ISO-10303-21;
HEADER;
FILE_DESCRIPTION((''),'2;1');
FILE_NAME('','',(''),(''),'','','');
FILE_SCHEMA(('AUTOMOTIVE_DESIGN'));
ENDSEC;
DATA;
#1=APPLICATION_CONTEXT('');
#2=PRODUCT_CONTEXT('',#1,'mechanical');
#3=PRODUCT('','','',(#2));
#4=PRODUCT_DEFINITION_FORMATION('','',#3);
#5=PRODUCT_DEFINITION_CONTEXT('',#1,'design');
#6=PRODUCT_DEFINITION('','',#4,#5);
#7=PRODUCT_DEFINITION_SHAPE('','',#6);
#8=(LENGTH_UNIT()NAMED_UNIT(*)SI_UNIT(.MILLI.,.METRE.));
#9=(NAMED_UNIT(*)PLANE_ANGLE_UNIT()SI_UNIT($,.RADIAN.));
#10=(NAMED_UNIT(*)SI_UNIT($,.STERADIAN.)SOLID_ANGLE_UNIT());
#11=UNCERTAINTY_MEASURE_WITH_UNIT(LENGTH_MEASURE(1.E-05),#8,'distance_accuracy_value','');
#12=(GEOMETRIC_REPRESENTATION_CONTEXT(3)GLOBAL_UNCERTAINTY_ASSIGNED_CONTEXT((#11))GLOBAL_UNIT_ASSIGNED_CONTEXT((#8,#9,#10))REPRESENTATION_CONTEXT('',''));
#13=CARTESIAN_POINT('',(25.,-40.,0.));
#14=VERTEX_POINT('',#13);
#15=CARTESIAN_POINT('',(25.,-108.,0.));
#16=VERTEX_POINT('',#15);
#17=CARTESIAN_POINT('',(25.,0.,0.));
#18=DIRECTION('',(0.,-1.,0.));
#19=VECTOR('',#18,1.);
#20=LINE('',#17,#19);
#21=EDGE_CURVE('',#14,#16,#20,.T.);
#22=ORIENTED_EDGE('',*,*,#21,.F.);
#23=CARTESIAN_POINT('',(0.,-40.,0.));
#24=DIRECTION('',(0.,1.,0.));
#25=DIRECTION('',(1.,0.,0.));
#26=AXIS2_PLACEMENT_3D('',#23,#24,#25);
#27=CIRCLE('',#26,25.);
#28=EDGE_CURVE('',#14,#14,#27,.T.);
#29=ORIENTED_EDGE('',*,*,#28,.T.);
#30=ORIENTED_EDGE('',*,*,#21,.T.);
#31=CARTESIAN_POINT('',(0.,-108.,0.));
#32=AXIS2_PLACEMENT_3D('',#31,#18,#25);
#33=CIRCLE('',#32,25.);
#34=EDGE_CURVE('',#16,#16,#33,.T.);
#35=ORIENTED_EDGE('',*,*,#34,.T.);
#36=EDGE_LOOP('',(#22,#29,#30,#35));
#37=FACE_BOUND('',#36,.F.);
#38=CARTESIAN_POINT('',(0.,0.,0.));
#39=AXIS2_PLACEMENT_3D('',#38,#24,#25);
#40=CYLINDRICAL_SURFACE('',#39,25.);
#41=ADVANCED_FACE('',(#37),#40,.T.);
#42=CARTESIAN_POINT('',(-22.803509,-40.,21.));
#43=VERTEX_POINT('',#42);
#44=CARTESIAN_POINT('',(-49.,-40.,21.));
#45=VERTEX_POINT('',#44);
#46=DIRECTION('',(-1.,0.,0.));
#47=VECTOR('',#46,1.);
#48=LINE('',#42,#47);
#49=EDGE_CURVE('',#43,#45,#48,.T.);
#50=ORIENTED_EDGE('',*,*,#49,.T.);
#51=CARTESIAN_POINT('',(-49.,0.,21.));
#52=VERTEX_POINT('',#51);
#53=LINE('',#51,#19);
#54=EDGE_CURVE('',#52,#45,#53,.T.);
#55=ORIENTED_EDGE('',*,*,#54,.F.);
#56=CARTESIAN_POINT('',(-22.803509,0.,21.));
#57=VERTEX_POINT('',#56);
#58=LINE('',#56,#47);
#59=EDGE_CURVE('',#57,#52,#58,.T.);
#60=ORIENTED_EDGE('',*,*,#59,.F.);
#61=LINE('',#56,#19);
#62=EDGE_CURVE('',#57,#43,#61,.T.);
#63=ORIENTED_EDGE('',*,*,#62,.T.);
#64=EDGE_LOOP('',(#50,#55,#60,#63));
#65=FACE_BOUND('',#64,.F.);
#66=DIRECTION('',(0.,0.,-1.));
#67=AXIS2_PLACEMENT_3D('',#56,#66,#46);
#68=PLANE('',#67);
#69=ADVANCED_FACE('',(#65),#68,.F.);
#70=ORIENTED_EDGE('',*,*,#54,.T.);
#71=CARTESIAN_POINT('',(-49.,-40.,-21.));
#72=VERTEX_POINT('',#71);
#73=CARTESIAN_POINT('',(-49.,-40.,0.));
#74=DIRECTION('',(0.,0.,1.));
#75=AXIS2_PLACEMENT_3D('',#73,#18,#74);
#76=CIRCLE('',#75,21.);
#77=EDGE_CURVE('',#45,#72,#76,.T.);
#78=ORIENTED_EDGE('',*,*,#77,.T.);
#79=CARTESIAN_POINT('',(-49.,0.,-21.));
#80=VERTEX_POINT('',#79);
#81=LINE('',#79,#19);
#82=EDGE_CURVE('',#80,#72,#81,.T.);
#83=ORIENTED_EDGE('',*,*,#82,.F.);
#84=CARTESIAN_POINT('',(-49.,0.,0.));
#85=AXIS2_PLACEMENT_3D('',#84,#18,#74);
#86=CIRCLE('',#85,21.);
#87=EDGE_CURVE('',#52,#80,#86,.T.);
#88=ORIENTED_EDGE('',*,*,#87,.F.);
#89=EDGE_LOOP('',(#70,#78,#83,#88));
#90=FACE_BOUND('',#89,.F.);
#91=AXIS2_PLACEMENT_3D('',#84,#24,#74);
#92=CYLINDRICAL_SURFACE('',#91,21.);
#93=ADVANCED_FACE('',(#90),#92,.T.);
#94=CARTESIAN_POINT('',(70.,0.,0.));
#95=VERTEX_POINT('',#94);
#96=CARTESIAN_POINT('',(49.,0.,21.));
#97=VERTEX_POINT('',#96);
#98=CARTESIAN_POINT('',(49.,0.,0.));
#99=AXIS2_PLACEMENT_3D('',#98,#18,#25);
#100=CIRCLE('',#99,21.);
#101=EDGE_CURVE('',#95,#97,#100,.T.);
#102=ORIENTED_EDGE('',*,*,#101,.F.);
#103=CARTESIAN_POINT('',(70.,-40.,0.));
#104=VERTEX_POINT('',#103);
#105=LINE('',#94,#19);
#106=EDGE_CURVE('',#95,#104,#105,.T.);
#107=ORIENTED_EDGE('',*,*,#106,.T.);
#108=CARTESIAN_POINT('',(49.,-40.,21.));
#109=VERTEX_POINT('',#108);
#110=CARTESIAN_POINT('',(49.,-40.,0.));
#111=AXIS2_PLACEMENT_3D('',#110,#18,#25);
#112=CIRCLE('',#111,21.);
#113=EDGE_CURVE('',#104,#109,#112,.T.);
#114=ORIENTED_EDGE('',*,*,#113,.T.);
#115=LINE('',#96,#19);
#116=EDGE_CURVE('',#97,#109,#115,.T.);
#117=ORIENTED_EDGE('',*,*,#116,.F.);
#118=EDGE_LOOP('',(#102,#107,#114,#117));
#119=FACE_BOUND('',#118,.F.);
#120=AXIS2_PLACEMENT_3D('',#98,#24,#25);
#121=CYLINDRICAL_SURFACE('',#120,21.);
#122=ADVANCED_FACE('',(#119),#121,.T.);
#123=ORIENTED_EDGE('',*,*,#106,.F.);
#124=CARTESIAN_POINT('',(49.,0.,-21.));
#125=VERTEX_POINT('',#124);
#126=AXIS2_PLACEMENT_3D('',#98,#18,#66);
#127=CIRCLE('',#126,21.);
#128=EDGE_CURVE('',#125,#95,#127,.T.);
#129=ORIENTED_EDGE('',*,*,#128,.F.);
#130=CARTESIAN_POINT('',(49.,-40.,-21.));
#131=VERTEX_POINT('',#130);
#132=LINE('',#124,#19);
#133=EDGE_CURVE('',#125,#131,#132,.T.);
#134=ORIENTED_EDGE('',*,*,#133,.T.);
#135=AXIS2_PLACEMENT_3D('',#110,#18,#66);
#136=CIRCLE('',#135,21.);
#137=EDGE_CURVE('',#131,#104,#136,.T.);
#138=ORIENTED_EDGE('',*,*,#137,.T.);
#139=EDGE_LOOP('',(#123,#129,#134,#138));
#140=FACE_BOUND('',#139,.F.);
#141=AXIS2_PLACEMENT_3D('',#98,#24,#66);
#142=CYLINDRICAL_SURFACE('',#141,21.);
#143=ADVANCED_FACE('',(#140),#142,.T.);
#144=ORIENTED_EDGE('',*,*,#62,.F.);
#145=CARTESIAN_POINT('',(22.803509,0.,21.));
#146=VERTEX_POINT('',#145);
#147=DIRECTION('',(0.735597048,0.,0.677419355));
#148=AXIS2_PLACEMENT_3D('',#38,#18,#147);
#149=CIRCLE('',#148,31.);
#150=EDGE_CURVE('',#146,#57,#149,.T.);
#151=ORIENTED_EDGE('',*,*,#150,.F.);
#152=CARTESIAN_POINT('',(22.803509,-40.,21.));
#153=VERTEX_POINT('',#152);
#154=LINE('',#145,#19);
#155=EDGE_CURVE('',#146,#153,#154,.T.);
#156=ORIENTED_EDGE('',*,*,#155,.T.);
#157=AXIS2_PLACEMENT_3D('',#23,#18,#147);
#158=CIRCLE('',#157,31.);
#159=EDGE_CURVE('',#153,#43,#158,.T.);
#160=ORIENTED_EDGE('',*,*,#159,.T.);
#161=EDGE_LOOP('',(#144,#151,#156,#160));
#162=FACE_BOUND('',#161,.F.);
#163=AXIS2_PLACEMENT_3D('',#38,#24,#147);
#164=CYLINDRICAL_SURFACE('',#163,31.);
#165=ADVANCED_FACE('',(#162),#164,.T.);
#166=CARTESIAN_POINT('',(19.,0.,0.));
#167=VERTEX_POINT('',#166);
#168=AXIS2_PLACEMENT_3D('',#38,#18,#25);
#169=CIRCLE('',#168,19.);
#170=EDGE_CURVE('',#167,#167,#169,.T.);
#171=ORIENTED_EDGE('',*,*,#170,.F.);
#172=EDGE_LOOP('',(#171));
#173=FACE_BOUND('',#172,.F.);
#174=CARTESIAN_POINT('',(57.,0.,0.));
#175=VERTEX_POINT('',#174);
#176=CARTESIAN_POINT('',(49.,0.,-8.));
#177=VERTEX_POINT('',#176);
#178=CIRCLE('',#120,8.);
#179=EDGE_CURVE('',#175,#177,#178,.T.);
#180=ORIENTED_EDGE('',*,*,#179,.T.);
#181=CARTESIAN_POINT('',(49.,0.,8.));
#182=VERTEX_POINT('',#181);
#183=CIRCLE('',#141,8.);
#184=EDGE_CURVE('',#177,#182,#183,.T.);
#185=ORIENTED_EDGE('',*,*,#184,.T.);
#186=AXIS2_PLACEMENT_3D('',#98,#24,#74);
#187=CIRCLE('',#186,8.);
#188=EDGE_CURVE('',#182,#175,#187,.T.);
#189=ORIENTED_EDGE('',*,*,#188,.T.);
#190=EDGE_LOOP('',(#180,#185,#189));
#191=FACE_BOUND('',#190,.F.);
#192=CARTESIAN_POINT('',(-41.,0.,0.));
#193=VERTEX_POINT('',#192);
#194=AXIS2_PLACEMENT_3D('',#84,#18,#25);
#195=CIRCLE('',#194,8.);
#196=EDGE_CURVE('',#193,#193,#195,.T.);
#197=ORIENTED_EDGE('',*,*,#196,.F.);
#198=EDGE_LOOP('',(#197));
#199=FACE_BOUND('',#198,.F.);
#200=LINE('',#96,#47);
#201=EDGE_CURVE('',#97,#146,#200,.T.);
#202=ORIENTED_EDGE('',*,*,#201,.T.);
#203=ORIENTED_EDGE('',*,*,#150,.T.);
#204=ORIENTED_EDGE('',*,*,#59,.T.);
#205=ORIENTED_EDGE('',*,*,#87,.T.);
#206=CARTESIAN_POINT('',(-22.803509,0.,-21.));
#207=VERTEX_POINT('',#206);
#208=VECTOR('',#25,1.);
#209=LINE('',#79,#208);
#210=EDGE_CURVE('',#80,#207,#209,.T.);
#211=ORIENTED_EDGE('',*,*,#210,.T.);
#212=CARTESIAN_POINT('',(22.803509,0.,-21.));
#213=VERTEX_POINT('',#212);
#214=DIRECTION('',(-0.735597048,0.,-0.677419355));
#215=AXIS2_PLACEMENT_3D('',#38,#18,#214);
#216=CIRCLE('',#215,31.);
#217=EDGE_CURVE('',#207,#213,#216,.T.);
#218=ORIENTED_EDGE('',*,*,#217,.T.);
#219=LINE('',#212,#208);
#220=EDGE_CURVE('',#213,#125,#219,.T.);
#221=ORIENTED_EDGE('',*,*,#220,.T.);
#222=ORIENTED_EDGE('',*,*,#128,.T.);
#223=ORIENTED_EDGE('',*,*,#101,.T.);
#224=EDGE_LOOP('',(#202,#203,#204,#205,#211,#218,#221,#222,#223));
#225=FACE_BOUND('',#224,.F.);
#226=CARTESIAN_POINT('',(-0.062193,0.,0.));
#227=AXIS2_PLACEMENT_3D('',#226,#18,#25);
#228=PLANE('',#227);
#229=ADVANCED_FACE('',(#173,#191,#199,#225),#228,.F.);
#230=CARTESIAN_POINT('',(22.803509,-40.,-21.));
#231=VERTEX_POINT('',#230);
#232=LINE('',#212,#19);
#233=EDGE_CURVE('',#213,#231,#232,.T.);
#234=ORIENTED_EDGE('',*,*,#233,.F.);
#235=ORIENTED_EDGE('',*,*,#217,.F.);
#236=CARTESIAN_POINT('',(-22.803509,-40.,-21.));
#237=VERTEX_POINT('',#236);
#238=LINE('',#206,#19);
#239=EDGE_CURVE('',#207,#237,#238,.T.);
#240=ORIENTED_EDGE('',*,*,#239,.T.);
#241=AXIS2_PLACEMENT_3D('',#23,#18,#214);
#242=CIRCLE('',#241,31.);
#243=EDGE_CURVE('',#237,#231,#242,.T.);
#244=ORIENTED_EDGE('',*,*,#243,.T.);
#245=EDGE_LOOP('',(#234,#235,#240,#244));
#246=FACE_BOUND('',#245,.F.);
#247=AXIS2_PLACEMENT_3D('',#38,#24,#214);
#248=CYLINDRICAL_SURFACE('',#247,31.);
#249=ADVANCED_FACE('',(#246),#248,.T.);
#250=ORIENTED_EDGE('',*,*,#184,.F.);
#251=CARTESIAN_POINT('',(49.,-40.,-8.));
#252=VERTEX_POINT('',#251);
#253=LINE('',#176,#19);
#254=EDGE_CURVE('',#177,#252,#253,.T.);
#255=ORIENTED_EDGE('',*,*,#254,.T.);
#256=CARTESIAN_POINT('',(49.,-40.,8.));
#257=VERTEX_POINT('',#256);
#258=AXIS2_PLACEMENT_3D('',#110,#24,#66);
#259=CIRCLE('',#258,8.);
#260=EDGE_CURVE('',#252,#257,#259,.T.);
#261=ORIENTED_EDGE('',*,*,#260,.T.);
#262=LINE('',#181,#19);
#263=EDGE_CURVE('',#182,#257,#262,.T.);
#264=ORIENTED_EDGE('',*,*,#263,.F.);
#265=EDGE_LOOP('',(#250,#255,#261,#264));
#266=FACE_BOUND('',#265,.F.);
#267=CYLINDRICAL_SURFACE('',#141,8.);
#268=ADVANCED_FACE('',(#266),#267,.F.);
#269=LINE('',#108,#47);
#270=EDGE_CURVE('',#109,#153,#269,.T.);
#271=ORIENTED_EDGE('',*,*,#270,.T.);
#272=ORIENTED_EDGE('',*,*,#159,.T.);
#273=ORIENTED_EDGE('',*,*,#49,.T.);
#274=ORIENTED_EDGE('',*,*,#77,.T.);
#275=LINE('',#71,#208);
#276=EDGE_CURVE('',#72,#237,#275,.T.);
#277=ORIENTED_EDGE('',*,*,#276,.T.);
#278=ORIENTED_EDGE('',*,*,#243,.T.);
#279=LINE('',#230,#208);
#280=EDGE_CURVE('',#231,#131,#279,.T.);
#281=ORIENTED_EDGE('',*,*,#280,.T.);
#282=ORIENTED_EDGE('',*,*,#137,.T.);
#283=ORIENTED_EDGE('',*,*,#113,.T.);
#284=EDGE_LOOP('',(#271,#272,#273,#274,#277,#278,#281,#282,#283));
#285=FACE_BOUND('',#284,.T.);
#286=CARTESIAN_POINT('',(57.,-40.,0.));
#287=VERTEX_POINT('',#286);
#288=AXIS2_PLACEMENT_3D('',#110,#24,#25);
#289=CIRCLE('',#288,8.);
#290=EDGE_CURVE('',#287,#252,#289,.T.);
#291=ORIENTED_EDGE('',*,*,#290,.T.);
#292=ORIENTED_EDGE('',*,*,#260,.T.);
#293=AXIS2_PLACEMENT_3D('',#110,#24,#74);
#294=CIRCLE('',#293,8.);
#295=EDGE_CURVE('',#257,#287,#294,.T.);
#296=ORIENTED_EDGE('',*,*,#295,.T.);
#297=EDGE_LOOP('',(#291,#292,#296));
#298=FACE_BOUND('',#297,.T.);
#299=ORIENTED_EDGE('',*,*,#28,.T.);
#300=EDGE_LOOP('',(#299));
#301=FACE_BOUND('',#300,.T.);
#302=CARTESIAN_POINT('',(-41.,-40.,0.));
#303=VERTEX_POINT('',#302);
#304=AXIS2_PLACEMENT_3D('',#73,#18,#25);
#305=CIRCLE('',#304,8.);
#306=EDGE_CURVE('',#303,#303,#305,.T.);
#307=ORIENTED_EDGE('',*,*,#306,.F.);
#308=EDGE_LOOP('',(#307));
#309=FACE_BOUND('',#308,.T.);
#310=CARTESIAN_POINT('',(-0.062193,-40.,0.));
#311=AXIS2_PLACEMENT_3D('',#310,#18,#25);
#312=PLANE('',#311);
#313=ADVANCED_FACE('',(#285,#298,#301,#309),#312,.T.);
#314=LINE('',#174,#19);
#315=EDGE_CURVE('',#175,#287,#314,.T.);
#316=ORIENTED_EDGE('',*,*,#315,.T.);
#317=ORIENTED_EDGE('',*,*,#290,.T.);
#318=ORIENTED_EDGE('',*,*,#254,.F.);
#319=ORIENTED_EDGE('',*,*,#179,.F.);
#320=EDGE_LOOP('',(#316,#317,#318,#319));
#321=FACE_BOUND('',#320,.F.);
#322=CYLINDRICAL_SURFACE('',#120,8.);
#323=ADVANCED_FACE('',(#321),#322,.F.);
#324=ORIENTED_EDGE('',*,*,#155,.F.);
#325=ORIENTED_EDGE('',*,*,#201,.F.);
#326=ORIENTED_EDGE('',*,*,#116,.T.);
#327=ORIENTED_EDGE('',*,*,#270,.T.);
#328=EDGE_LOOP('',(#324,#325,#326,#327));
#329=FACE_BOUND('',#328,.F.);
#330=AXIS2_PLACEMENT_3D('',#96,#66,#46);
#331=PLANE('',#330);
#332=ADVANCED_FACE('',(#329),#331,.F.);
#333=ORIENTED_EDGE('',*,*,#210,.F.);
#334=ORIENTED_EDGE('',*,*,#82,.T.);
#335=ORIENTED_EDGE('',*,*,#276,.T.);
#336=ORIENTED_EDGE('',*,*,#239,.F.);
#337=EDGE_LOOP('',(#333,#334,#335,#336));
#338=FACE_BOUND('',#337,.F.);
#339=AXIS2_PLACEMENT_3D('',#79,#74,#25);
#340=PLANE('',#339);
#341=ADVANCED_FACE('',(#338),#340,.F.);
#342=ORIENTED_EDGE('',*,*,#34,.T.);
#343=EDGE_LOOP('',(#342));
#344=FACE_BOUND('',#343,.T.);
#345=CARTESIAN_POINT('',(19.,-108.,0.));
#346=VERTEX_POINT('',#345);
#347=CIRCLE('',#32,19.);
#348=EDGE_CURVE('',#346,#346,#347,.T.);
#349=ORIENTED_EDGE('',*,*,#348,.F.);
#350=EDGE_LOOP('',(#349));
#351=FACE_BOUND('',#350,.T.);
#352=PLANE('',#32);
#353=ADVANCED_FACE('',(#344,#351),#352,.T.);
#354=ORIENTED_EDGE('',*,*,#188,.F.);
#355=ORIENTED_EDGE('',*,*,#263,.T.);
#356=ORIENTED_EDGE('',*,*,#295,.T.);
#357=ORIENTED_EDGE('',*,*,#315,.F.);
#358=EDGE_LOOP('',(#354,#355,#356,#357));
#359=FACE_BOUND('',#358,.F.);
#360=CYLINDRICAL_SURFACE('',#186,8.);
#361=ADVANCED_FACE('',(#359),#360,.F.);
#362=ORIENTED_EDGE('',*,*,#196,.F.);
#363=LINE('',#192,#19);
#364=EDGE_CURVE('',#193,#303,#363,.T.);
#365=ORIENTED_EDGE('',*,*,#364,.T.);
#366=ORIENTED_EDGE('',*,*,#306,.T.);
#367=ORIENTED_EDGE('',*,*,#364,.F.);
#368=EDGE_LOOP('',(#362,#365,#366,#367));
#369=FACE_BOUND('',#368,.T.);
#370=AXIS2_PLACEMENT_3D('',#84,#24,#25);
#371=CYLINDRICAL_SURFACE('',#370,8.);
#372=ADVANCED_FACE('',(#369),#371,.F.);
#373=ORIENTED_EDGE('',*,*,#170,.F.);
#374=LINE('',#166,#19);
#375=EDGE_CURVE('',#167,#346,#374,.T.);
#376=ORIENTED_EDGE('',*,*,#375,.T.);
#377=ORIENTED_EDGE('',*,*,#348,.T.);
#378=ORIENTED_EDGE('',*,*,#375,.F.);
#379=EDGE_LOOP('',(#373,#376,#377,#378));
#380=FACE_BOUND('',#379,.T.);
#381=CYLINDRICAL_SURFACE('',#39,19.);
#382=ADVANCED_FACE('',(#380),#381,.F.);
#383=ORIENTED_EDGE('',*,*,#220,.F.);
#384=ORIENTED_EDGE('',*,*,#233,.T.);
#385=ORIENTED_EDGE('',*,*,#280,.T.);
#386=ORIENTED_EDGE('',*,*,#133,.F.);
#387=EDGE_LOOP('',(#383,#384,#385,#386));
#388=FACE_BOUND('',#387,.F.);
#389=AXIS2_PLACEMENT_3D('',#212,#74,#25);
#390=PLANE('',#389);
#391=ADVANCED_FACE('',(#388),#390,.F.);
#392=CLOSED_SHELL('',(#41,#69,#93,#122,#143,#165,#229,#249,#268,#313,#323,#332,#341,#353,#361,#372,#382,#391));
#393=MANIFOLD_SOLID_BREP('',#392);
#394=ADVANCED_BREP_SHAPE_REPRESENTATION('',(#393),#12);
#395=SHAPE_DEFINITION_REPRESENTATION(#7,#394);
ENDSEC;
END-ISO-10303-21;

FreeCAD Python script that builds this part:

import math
import FreeCAD as App
import Part
import Sketcher
Q = App.Units.Quantity

doc = App.newDocument("Part")
body = doc.addObject("PartDesign::Body", "Body")

sketch1 = body.newObject("Sketcher::SketchObject", "Sketch")
sketch1.AttachmentSupport = (doc.getObject("XZ_Plane"), [""])
sketch1.MapMode = "FlatFace"
sketch1.addGeometry(Part.LineSegment(App.Vector(-49, -21, 0), App.Vector(-22.803509, -21, 0)), False)
sketch1.addGeometry(Part.ArcOfCircle(Part.Circle(App.Vector(0, 0, 0), App.Vector(0, 0, 1), 31), math.radians(-137.35769), math.radians(-42.64231)), False)
sketch1.addGeometry(Part.LineSegment(App.Vector(22.803509, -21, 0), App.Vector(49, -21, 0)), False)
sketch1.addGeometry(Part.ArcOfCircle(Part.Circle(App.Vector(49, 0, 0), App.Vector(0, 0, 1), 21), math.radians(-90), math.radians(0)), False)
sketch1.addGeometry(Part.ArcOfCircle(Part.Circle(App.Vector(49, 0, 0), App.Vector(0, 0, 1), 21), math.radians(0), math.radians(90)), False)
sketch1.addGeometry(Part.LineSegment(App.Vector(49, 21, 0), App.Vector(22.803509, 21, 0)), False)
sketch1.addGeometry(Part.ArcOfCircle(Part.Circle(App.Vector(0, 0, 0), App.Vector(0, 0, 1), 31), math.radians(42.64231), math.radians(137.35769)), False)
sketch1.addGeometry(Part.LineSegment(App.Vector(-22.803509, 21, 0), App.Vector(-49, 21, 0)), False)
sketch1.addGeometry(Part.ArcOfCircle(Part.Circle(App.Vector(-49, 0, 0), App.Vector(0, 0, 1), 21), math.radians(90), math.radians(270)), False)
sketch1.addGeometry(Part.Circle(App.Vector(-49, 0, 0), App.Vector(0, 0, 1), 8), False)
sketch1.addGeometry(Part.Circle(App.Vector(0, 0, 0), App.Vector(0, 0, 1), 19), False)
sketch1.addGeometry(Part.ArcOfCircle(Part.Circle(App.Vector(49, 0, 0), App.Vector(0, 0, 1), 8), math.radians(90), math.radians(270)), False)
sketch1.addGeometry(Part.ArcOfCircle(Part.Circle(App.Vector(49, 0, 0), App.Vector(0, 0, 1), 8), math.radians(0), math.radians(90)), False)
sketch1.addGeometry(Part.ArcOfCircle(Part.Circle(App.Vector(49, 0, 0), App.Vector(0, 0, 1), 8), math.radians(-90), math.radians(0)), False)
sketch1.addConstraint(Sketcher.Constraint("Coincident", 0, 2, 1, 1))
sketch1.addConstraint(Sketcher.Constraint("Coincident", 1, 2, 2, 1))
sketch1.addConstraint(Sketcher.Constraint("Tangent", 2, 2, 3, 1))
sketch1.addConstraint(Sketcher.Constraint("Tangent", 3, 2, 4, 1))
sketch1.addConstraint(Sketcher.Constraint("Tangent", 4, 2, 5, 1))
sketch1.addConstraint(Sketcher.Constraint("Coincident", 5, 2, 6, 1))
sketch1.addConstraint(Sketcher.Constraint("Coincident", 6, 2, 7, 1))
sketch1.addConstraint(Sketcher.Constraint("Tangent", 7, 2, 8, 1))
sketch1.addConstraint(Sketcher.Constraint("Tangent", 8, 2, 0, 1))
sketch1.addConstraint(Sketcher.Constraint("Tangent", 11, 1, 12, 2))
sketch1.addConstraint(Sketcher.Constraint("Tangent", 12, 1, 13, 2))
sketch1.addConstraint(Sketcher.Constraint("Tangent", 13, 1, 11, 2))
sketch1.addConstraint(Sketcher.Constraint("Horizontal", 0))
sketch1.addConstraint(Sketcher.Constraint("Horizontal", 2))
sketch1.addConstraint(Sketcher.Constraint("Horizontal", 5))
sketch1.addConstraint(Sketcher.Constraint("Horizontal", 7))
sketch1.addConstraint(Sketcher.Constraint("Coincident", 1, 3, -1, 1))
sketch1.addConstraint(Sketcher.Constraint("Coincident", 6, 3, -1, 1))
sketch1.addConstraint(Sketcher.Constraint("Coincident", 10, 3, -1, 1))
sketch1.addConstraint(Sketcher.Constraint("Coincident", 9, 3, 8, 3))
sketch1.addConstraint(Sketcher.Constraint("Coincident", 11, 3, 3, 3))
sketch1.addConstraint(Sketcher.Constraint("Equal", 3, 4))
sketch1.addConstraint(Sketcher.Constraint("Equal", 1, 6))
sketch1.addConstraint(Sketcher.Constraint("Equal", 4, 8))
sketch1.addConstraint(Sketcher.Constraint("Equal", 9, 11))
sketch1.addConstraint(Sketcher.Constraint("Symmetric", 3, 3, 8, 3, -1, 1))
sketch1.addConstraint(Sketcher.Constraint("Symmetric", 11, 1, 13, 1, -1))
sketch1.addConstraint(Sketcher.Constraint("PointOnObject", 3, 2, -1))
sketch1.addConstraint(Sketcher.Constraint("PointOnObject", 12, 1, -1))
sketch1.addConstraint(Sketcher.Constraint("Vertical", 4, 2, 11, 1))
sketch1.addConstraint(Sketcher.Constraint("Diameter", 9, Q("16 mm")))
sketch1.addConstraint(Sketcher.Constraint("Diameter", 10, Q("38 mm")))
sketch1.addConstraint(Sketcher.Constraint("Radius", 1, Q("31 mm")))
sketch1.addConstraint(Sketcher.Constraint("Radius", 3, Q("21 mm")))
sketch1.addConstraint(Sketcher.Constraint("DistanceX", -1, 1, 3, 3, Q("49 mm")))
pad1 = body.newObject("PartDesign::Pad", "Pad")
pad1.Profile = sketch1
pad1.Length = 40

sketch2 = body.newObject("Sketcher::SketchObject", "Sketch001")
sketch2.AttachmentSupport = (doc.getObject("XZ_Plane"), [""])
sketch2.MapMode = "FlatFace"
sketch2.addGeometry(Part.Circle(App.Vector(0, 0, 0), App.Vector(0, 0, 1), 25), False)
sketch2.addGeometry(Part.Circle(App.Vector(0, 0, 0), App.Vector(0, 0, 1), 19), False)
sketch2.addConstraint(Sketcher.Constraint("Coincident", 0, 3, -1, 1))
sketch2.addConstraint(Sketcher.Constraint("Coincident", 1, 3, -1, 1))
sketch2.addConstraint(Sketcher.Constraint("Diameter", 0, Q("50 mm")))
sketch2.addConstraint(Sketcher.Constraint("Diameter", 1, Q("38 mm")))
pad2 = body.newObject("PartDesign::Pad", "Pad001")
pad2.Profile = sketch2
pad2.Length = 108

doc.recompute()
